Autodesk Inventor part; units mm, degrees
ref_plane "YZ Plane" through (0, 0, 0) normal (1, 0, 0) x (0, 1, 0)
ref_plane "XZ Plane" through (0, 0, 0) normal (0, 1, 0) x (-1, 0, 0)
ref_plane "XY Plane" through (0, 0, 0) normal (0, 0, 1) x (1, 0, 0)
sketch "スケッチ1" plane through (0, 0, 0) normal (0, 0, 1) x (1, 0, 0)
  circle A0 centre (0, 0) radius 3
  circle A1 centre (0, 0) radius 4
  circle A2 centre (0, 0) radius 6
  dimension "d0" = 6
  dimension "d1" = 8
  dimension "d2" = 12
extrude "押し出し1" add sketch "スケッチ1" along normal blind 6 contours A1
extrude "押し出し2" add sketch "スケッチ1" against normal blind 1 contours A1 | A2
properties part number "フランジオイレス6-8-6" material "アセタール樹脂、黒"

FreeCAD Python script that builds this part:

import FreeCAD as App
import Part
import Sketcher
Q = App.Units.Quantity

doc = App.newDocument("Part")
body = doc.addObject("PartDesign::Body", "Body")

sketch1 = doc.addObject("Sketcher::SketchObject", "Sketch")
body.addObject(sketch1)
sketch1.AttachmentSupport = (doc.XY_Plane, [""])
sketch1.MapMode = "FlatFace"
sketch1.addGeometry(Part.Circle(App.Vector(0, 0, 0), App.Vector(0, 0, 1), 4), False)
sketch1.addGeometry(Part.Circle(App.Vector(0, 0, 0), App.Vector(0, 0, 1), 3), False)
sketch1.addConstraint(Sketcher.Constraint("Coincident", 0, 3, -1, 1))
sketch1.addConstraint(Sketcher.Constraint("Coincident", 1, 3, -1, 1))
sketch1.addConstraint(Sketcher.Constraint("Diameter", 0, Q("8 mm")))
sketch1.addConstraint(Sketcher.Constraint("Diameter", 1, Q("6 mm")))
pad1 = doc.addObject("PartDesign::Pad", "Pad")
body.addObject(pad1)
pad1.Profile = sketch1
pad1.Length = 6

sketch2 = doc.addObject("Sketcher::SketchObject", "Sketch001")
body.addObject(sketch2)
sketch2.AttachmentSupport = (doc.XY_Plane, [""])
sketch2.MapMode = "FlatFace"
sketch2.addGeometry(Part.Circle(App.Vector(0, 0, 0), App.Vector(0, 0, 1), 6), False)
sketch2.addGeometry(Part.Circle(App.Vector(0, 0, 0), App.Vector(0, 0, 1), 3), False)
sketch2.addConstraint(Sketcher.Constraint("Coincident", 0, 3, -1, 1))
sketch2.addConstraint(Sketcher.Constraint("Coincident", 1, 3, -1, 1))
sketch2.addConstraint(Sketcher.Constraint("Diameter", 0, Q("12 mm")))
sketch2.addConstraint(Sketcher.Constraint("Diameter", 1, Q("6 mm")))
pad2 = doc.addObject("PartDesign::Pad", "Pad001")
body.addObject(pad2)
pad2.Profile = sketch2
pad2.Length = 1
pad2.Reversed = True

doc.recompute()
